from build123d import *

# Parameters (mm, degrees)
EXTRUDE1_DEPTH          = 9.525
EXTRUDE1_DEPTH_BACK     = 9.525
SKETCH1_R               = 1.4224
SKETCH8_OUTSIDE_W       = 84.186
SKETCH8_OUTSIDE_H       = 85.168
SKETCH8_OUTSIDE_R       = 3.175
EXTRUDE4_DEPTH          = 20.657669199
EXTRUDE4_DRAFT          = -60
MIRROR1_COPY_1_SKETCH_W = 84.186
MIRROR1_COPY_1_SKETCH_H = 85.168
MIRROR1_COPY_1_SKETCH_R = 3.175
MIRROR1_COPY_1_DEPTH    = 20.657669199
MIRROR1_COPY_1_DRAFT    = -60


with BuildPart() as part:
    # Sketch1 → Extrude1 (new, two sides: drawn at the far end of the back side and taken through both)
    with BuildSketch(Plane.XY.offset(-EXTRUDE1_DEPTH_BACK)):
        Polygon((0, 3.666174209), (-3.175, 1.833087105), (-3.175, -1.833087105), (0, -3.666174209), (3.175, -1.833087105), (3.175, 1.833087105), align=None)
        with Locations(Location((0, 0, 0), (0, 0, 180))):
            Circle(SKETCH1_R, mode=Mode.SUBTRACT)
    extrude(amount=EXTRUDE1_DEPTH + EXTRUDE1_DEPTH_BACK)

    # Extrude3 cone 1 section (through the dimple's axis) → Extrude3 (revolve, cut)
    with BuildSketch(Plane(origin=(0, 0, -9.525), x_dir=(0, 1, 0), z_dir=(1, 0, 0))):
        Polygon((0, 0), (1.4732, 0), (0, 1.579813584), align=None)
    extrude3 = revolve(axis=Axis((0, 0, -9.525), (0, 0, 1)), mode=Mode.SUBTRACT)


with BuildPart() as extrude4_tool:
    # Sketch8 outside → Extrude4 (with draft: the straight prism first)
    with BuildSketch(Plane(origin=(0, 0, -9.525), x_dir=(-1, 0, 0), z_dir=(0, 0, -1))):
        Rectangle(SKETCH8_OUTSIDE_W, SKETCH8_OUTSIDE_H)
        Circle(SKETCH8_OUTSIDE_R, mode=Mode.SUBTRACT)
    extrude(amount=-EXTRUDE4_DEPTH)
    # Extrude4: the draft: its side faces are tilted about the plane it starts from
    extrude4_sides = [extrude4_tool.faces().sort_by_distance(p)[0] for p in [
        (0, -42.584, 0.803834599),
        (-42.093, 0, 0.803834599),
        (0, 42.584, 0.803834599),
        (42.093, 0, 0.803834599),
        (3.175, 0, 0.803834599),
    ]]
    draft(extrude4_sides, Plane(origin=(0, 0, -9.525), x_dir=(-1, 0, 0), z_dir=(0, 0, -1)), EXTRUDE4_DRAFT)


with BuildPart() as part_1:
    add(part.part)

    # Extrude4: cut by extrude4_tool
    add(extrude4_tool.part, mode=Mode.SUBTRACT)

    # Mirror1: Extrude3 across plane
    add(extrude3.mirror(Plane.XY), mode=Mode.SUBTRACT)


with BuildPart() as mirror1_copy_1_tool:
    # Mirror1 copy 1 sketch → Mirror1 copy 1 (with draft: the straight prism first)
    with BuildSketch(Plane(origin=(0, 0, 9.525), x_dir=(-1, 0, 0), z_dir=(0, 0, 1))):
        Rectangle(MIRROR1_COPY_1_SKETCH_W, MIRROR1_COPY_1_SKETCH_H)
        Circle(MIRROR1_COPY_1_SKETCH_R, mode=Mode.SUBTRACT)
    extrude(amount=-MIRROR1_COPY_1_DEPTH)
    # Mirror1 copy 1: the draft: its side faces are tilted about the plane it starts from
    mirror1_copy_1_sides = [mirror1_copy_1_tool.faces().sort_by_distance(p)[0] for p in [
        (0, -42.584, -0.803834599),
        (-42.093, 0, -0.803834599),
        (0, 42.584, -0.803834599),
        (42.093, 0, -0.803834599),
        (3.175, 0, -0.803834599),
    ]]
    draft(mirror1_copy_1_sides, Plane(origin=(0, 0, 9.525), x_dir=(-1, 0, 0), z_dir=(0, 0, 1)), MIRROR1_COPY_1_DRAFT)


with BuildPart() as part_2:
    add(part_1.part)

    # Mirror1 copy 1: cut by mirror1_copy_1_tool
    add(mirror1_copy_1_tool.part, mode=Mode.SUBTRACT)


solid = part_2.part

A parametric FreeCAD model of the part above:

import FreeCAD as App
import Part
import Sketcher
Q = App.Units.Quantity


def faces_at(feature, points):
    """Names of the faces that lie closest to the given points."""
    faces = feature.Shape.Faces
    near = lambda p: min(range(len(faces)), key=lambda i: faces[i].distToShape(Part.Vertex(*p))[0])
    return sorted({f"Face{near(p) + 1}" for p in points})

doc = App.newDocument("Part")
body = doc.addObject("PartDesign::Body", "Body")

sketch1 = body.newObject("Sketcher::SketchObject", "Sketch")
sketch1.AttachmentSupport = (doc.getObject("XY_Plane"), [""])
sketch1.MapMode = "FlatFace"
sketch1.addGeometry([
    Part.LineSegment(App.Vector(0, 3.7, 0), App.Vector(-3.2, 1.8, 0)),
    Part.LineSegment(App.Vector(-3.2, 1.8, 0), App.Vector(-3.2, -1.8, 0)),
    Part.LineSegment(App.Vector(-3.2, -1.8, 0), App.Vector(0, -3.7, 0)),
    Part.LineSegment(App.Vector(0, -3.7, 0), App.Vector(3.2, -1.8, 0)),
    Part.LineSegment(App.Vector(3.2, -1.8, 0), App.Vector(3.2, 1.8, 0)),
    Part.LineSegment(App.Vector(3.2, 1.8, 0), App.Vector(0, 3.7, 0)),
    Part.Circle(App.Vector(0, 0, 0), App.Vector(0, 0, 1), 1.4),
], False)
sketch1.addConstraint([
    Sketcher.Constraint("Coincident", 0, 2, 1, 1),
    Sketcher.Constraint("Coincident", 1, 2, 2, 1),
    Sketcher.Constraint("Coincident", 2, 2, 3, 1),
    Sketcher.Constraint("Coincident", 3, 2, 4, 1),
    Sketcher.Constraint("Coincident", 4, 2, 5, 1),
    Sketcher.Constraint("Coincident", 5, 2, 0, 1),
    Sketcher.Constraint("Vertical", 1),
    Sketcher.Constraint("Vertical", 4),
    Sketcher.Constraint("Coincident", 6, 3, -1, 1),
    Sketcher.Constraint("Symmetric", 0, 2, 3, 2, -1, 1),
    Sketcher.Constraint("Symmetric", 2, 2, 5, 2, -1, 1),
    Sketcher.Constraint("PointOnObject", 2, 2, -2),
    Sketcher.Constraint("Parallel", 2, 5),
    Sketcher.Constraint("Horizontal", 1, 2, 3, 2),
    Sketcher.Constraint("Diameter", 6, Q("0.112 in")),
    Sketcher.Constraint("Angle", 0, Q("-150 deg")),
    Sketcher.Constraint("DistanceX", 1, 2, 3, 2, Q("0.25 in")),
    Sketcher.Constraint("DistanceY", 1, 2, 1, 1, 3.666174),
])
pad1 = body.newObject("PartDesign::Pad", "Pad")
pad1.Profile = sketch1
pad1.Type = "TwoLengths"
pad1.Length = Q("0.375 in")
pad1.Length2 = Q("0.375 in")

sketch2 = body.newObject("Sketcher::SketchObject", "Sketch001")
sketch2.AttachmentSupport = (doc.getObject("YZ_Plane"), [""])
sketch2.MapMode = "FlatFace"
sketch2.addGeometry([
    Part.LineSegment(App.Vector(0, -9.5, 0), App.Vector(1.5, -9.5, 0)),
    Part.LineSegment(App.Vector(1.5, -9.5, 0), App.Vector(0, -7.9, 0)),
    Part.LineSegment(App.Vector(0, -7.9, 0), App.Vector(0, -9.5, 0)),
], False)
sketch2.addConstraint([
    Sketcher.Constraint("Coincident", 0, 2, 1, 1),
    Sketcher.Constraint("Coincident", 1, 2, 2, 1),
    Sketcher.Constraint("Coincident", 2, 2, 0, 1),
    Sketcher.Constraint("Horizontal", 0),
    Sketcher.Constraint("Vertical", 2),
    Sketcher.Constraint("PointOnObject", 1, 2, -2),
    Sketcher.Constraint("Angle", 1, Q("133 deg")),
    Sketcher.Constraint("DistanceX", 0, 1, 0, 2, Q("0.058 in")),
    Sketcher.Constraint("DistanceY", 0, 2, -1, 1, Q("0.375 in")),
])
groove = body.newObject("PartDesign::Groove", "Groove")
groove.Profile = sketch2
groove.ReferenceAxis = (sketch2, ["V_Axis"])
groove.Angle = 360
body2 = doc.addObject("PartDesign::Body", "Body001")

sketch3 = body2.newObject("Sketcher::SketchObject", "Sketch002")
sketch3.AttachmentSupport = (doc.getObject("XY_Plane001"), [""])
sketch3.MapMode = "FlatFace"
sketch3.AttachmentOffset = App.Placement(App.Vector(0, 0, -0.375 * 25.4), App.Rotation())
sketch3.addGeometry([
    Part.LineSegment(App.Vector(42.1, 42.6, 0), App.Vector(42.1, -42.6, 0)),
    Part.LineSegment(App.Vector(42.1, -42.6, 0), App.Vector(-42.1, -42.6, 0)),
    Part.LineSegment(App.Vector(-42.1, -42.6, 0), App.Vector(-42.1, 42.6, 0)),
    Part.LineSegment(App.Vector(-42.1, 42.6, 0), App.Vector(42.1, 42.6, 0)),
    Part.Circle(App.Vector(0, 0, 0), App.Vector(0, 0, 1), 3.2),
], False)
sketch3.addConstraint([
    Sketcher.Constraint("Coincident", 0, 2, 1, 1),
    Sketcher.Constraint("Coincident", 1, 2, 2, 1),
    Sketcher.Constraint("Coincident", 2, 2, 3, 1),
    Sketcher.Constraint("Coincident", 3, 2, 0, 1),
    Sketcher.Constraint("Vertical", 0),
    Sketcher.Constraint("Horizontal", 1),
    Sketcher.Constraint("Vertical", 2),
    Sketcher.Constraint("Horizontal", 3),
    Sketcher.Constraint("Coincident", 4, 3, -1, 1),
    Sketcher.Constraint("Symmetric", 0, 2, 2, 2, -1, 1),
    Sketcher.Constraint("Diameter", 4, Q("0.25 in")),
    Sketcher.Constraint("DistanceX", 1, 2, 1, 1, 84.186),
    Sketcher.Constraint("DistanceY", 0, 2, 0, 1, 85.168),
])
pad2 = body2.newObject("PartDesign::Pad", "Pad001")
pad2.Profile = sketch3
pad2.Length = 20.657669
doc.recompute()

datumplane = body2.newObject("PartDesign::Plane", "DatumPlane")
datumplane.AttachmentSupport = (doc.getObject("XY_Plane001"), [""])
datumplane.MapMode = "FlatFace"
datumplane.AttachmentOffset = App.Placement(App.Vector(0, 0, -0.375 * 25.4), App.Rotation())
draft = body2.newObject("PartDesign::Draft", "Draft")
draft.Base = (pad2, faces_at(pad2, [
    (0, -42.584, 0.804),
    (-42.093, 0, 0.804),
    (0, 42.584, 0.804),
    (42.093, 0, 0.804),
    (3.175, 0, 0.804),
]))
draft.NeutralPlane = (datumplane, [""])
draft.Angle = 60
draft.Reversed = False
doc.recompute()

boolean = body.newObject("PartDesign::Boolean", "Boolean")
boolean.Type = "Cut"
boolean.addObjects([body2])
doc.recompute()

mirrored = body.newObject("PartDesign::Mirrored", "Mirrored")
mirrored.Originals = [groove]
mirrored.MirrorPlane = (doc.getObject("XY_Plane"), [""])
body.Tip = mirrored
body3 = doc.addObject("PartDesign::Body", "Body002")

sketch4 = body3.newObject("Sketcher::SketchObject", "Sketch003")
sketch4.AttachmentSupport = (doc.getObject("XY_Plane002"), [""])
sketch4.MapMode = "FlatFace"
sketch4.AttachmentOffset = App.Placement(App.Vector(0, 0, 0.375 * 25.4), App.Rotation())
sketch4.addGeometry([
    Part.LineSegment(App.Vector(42.1, -42.6, 0), App.Vector(42.1, 42.6, 0)),
    Part.LineSegment(App.Vector(42.1, 42.6, 0), App.Vector(-42.1, 42.6, 0)),
    Part.LineSegment(App.Vector(-42.1, 42.6, 0), App.Vector(-42.1, -42.6, 0)),
    Part.LineSegment(App.Vector(-42.1, -42.6, 0), App.Vector(42.1, -42.6, 0)),
    Part.Circle(App.Vector(0, 0, 0), App.Vector(0, 0, 1), 3.2),
], False)
sketch4.addConstraint([
    Sketcher.Constraint("Coincident", 0, 2, 1, 1),
    Sketcher.Constraint("Coincident", 1, 2, 2, 1),
    Sketcher.Constraint("Coincident", 2, 2, 3, 1),
    Sketcher.Constraint("Coincident", 3, 2, 0, 1),
    Sketcher.Constraint("Vertical", 0),
    Sketcher.Constraint("Horizontal", 1),
    Sketcher.Constraint("Vertical", 2),
    Sketcher.Constraint("Horizontal", 3),
    Sketcher.Constraint("Coincident", 4, 3, -1, 1),
    Sketcher.Constraint("Symmetric", 0, 2, 2, 2, -1, 1),
    Sketcher.Constraint("Diameter", 4, Q("0.25 in")),
    Sketcher.Constraint("DistanceX", 1, 2, 1, 1, 84.186),
    Sketcher.Constraint("DistanceY", 0, 1, 0, 2, 85.168),
])
pad3 = body3.newObject("PartDesign::Pad", "Pad002")
pad3.Profile = sketch4
pad3.Length = 20.657669
pad3.Reversed = True
doc.recompute()

datumplane2 = body3.newObject("PartDesign::Plane", "DatumPlane001")
datumplane2.AttachmentSupport = (doc.getObject("XY_Plane002"), [""])
datumplane2.MapMode = "FlatFace"
datumplane2.AttachmentOffset = App.Placement(App.Vector(0, 0, 0.375 * 25.4), App.Rotation())
draft2 = body3.newObject("PartDesign::Draft", "Draft001")
draft2.Base = (pad3, faces_at(pad3, [
    (0, -42.584, -0.804),
    (-42.093, 0, -0.804),
    (0, 42.584, -0.804),
    (42.093, 0, -0.804),
    (3.175, 0, -0.804),
]))
draft2.NeutralPlane = (datumplane2, [""])
draft2.Angle = 60
draft2.Reversed = True
doc.recompute()

boolean2 = body.newObject("PartDesign::Boolean", "Boolean001")
boolean2.Type = "Cut"
boolean2.addObjects([body3])

doc.recompute()
